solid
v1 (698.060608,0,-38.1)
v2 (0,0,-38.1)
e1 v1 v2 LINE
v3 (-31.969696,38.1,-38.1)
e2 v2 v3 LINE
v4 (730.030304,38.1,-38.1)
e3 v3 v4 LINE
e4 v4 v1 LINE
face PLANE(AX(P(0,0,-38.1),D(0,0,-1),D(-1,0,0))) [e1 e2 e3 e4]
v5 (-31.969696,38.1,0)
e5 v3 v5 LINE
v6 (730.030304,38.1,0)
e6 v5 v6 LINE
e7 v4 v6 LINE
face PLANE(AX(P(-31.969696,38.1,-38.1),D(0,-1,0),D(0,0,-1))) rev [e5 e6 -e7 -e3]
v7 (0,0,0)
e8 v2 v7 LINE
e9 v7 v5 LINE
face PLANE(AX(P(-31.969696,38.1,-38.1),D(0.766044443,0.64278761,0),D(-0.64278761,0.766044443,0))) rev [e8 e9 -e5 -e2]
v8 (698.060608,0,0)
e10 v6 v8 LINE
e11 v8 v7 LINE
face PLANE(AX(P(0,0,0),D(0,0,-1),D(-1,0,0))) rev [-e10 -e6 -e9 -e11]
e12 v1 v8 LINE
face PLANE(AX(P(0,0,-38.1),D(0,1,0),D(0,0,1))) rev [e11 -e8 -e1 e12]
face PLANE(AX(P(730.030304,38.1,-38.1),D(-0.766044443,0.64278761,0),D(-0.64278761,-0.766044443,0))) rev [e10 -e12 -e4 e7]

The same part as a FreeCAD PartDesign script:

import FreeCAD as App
import Part
import Sketcher
from FreeCAD import Vector
Q = App.Units.Quantity


def add_polygon(sketch, points):
    """Adds a closed chain of lines whose ends are joined by coincident constraints."""
    first, n = sketch.GeometryCount, len(points)
    for a, b in zip(points, points[1:] + points[:1]):
        sketch.addGeometry(Part.LineSegment(App.Vector(*a, 0), App.Vector(*b, 0)), False)
    for i in range(n):
        sketch.addConstraint(Sketcher.Constraint("Coincident", first + i, 2, first + (i + 1) % n, 1))

doc = App.newDocument("Part")
body = doc.addObject("PartDesign::Body", "Body")

# Sketch on XY plane
sketch1 = doc.addObject("Sketcher::SketchObject", "Sketch")
body.addObject(sketch1)
sketch1.AttachmentSupport = (doc.XY_Plane, [""])
sketch1.MapMode = "FlatFace"
add_polygon(sketch1, [(0, 0), (-31.969696, 38.1), (730.030304, 38.1), (698.060608, 0)])  # lines 0-3
sketch1.addConstraint([
    Sketcher.Constraint("Horizontal", 1),
    Sketcher.Constraint("Horizontal", 3),
    Sketcher.Constraint("Coincident", 3, 2, -1, 1),
    Sketcher.Constraint("Equal", 0, 2),
    Sketcher.Constraint("DistanceX", 1, 1, 1, 2, Q("30 in")),
    Sketcher.Constraint("Angle", 0, Q("130 deg")),
    Sketcher.Constraint("DistanceY", -1, 1, 0, 2, Q("1.5 in")),
])
pad1 = doc.addObject("PartDesign::Pad", "Pad")
body.addObject(pad1)
pad1.Profile = sketch1
pad1.Length = Q("1.5 in")
pad1.Reversed = True

doc.recompute()
